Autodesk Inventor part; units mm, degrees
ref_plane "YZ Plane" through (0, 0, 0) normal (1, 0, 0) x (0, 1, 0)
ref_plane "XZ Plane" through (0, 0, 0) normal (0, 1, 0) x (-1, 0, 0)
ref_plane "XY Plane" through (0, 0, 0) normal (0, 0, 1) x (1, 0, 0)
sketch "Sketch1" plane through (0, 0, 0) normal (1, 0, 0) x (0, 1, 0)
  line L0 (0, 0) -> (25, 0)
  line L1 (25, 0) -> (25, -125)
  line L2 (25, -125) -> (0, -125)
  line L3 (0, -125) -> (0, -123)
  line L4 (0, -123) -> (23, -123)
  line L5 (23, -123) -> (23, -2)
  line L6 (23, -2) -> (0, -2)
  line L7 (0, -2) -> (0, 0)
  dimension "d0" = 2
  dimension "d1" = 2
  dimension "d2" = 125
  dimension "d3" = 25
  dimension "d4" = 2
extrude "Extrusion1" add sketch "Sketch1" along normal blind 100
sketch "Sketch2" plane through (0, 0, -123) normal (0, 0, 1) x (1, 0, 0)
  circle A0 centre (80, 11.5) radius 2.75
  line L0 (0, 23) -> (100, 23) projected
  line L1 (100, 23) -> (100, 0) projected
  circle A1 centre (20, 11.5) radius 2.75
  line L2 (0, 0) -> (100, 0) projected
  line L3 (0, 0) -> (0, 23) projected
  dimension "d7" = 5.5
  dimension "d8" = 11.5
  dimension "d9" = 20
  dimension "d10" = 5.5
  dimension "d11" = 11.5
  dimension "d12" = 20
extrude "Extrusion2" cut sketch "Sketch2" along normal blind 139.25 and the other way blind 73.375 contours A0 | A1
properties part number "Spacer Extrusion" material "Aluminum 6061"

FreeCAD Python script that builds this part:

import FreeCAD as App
import Part
import Sketcher
Q = App.Units.Quantity


def add_polygon(sketch, points):
    """Adds a closed chain of lines whose ends are joined by coincident constraints."""
    first, n = sketch.GeometryCount, len(points)
    for a, b in zip(points, points[1:] + points[:1]):
        sketch.addGeometry(Part.LineSegment(App.Vector(*a, 0), App.Vector(*b, 0)), False)
    for i in range(n):
        sketch.addConstraint(Sketcher.Constraint("Coincident", first + i, 2, first + (i + 1) % n, 1))

doc = App.newDocument("Part")
body = doc.addObject("PartDesign::Body", "Body")

sketch1 = body.newObject("Sketcher::SketchObject", "Sketch")
sketch1.AttachmentSupport = (doc.getObject("YZ_Plane"), [""])
sketch1.MapMode = "FlatFace"
add_polygon(sketch1, [(25, 0), (0, 0), (0, -2), (23, -2), (23, -123), (0, -123), (0, -125), (25, -125)])
sketch1.addConstraint([
    Sketcher.Constraint("Horizontal", 0),
    Sketcher.Constraint("Vertical", 1),
    Sketcher.Constraint("Horizontal", 2),
    Sketcher.Constraint("Vertical", 3),
    Sketcher.Constraint("Horizontal", 4),
    Sketcher.Constraint("Vertical", 5),
    Sketcher.Constraint("Horizontal", 6),
    Sketcher.Constraint("Vertical", 7),
    Sketcher.Constraint("Coincident", 0, 2, -1, 1),
    Sketcher.Constraint("PointOnObject", 4, 2, -2),
    Sketcher.Constraint("Equal", 1, 5),
    Sketcher.Constraint("DistanceX", 0, 2, 0, 1, Q("25 mm")),
    Sketcher.Constraint("DistanceY", 1, 2, 1, 1, Q("2 mm")),
    Sketcher.Constraint("DistanceY", 7, 1, 7, 2, Q("125 mm")),
    Sketcher.Constraint("DistanceX", 3, 2, 6, 2, Q("2 mm")),
])
pad1 = body.newObject("PartDesign::Pad", "Pad")
pad1.Profile = sketch1
pad1.Length = 100

sketch2 = body.newObject("Sketcher::SketchObject", "Sketch001")
sketch2.AttachmentSupport = (doc.getObject("XY_Plane"), [""])
sketch2.MapMode = "FlatFace"
sketch2.AttachmentOffset = App.Placement(App.Vector(0, 0, -123), App.Rotation())
sketch2.addGeometry([
    Part.Circle(App.Vector(80, 11.5, 0), App.Vector(0, 0, 1), 2.8),
    Part.Circle(App.Vector(20, 11.5, 0), App.Vector(0, 0, 1), 2.8),
], False)
sketch2.addConstraint([
    Sketcher.Constraint("Equal", 0, 1),
    Sketcher.Constraint("Horizontal", 0, 3, 1, 3),
    Sketcher.Constraint("Diameter", 0, Q("5.5 mm")),
    Sketcher.Constraint("DistanceX", -1, 1, 1, 3, Q("20 mm")),
    Sketcher.Constraint("DistanceY", -1, 1, 0, 3, Q("11.5 mm")),
    Sketcher.Constraint("DistanceX", -1, 1, 0, 3, Q("80 mm")),
])
pocket1 = body.newObject("PartDesign::Pocket", "Pocket")
pocket1.Profile = sketch2
pocket1.Type = "ThroughAll"
pocket1.Midplane = True

doc.recompute()
